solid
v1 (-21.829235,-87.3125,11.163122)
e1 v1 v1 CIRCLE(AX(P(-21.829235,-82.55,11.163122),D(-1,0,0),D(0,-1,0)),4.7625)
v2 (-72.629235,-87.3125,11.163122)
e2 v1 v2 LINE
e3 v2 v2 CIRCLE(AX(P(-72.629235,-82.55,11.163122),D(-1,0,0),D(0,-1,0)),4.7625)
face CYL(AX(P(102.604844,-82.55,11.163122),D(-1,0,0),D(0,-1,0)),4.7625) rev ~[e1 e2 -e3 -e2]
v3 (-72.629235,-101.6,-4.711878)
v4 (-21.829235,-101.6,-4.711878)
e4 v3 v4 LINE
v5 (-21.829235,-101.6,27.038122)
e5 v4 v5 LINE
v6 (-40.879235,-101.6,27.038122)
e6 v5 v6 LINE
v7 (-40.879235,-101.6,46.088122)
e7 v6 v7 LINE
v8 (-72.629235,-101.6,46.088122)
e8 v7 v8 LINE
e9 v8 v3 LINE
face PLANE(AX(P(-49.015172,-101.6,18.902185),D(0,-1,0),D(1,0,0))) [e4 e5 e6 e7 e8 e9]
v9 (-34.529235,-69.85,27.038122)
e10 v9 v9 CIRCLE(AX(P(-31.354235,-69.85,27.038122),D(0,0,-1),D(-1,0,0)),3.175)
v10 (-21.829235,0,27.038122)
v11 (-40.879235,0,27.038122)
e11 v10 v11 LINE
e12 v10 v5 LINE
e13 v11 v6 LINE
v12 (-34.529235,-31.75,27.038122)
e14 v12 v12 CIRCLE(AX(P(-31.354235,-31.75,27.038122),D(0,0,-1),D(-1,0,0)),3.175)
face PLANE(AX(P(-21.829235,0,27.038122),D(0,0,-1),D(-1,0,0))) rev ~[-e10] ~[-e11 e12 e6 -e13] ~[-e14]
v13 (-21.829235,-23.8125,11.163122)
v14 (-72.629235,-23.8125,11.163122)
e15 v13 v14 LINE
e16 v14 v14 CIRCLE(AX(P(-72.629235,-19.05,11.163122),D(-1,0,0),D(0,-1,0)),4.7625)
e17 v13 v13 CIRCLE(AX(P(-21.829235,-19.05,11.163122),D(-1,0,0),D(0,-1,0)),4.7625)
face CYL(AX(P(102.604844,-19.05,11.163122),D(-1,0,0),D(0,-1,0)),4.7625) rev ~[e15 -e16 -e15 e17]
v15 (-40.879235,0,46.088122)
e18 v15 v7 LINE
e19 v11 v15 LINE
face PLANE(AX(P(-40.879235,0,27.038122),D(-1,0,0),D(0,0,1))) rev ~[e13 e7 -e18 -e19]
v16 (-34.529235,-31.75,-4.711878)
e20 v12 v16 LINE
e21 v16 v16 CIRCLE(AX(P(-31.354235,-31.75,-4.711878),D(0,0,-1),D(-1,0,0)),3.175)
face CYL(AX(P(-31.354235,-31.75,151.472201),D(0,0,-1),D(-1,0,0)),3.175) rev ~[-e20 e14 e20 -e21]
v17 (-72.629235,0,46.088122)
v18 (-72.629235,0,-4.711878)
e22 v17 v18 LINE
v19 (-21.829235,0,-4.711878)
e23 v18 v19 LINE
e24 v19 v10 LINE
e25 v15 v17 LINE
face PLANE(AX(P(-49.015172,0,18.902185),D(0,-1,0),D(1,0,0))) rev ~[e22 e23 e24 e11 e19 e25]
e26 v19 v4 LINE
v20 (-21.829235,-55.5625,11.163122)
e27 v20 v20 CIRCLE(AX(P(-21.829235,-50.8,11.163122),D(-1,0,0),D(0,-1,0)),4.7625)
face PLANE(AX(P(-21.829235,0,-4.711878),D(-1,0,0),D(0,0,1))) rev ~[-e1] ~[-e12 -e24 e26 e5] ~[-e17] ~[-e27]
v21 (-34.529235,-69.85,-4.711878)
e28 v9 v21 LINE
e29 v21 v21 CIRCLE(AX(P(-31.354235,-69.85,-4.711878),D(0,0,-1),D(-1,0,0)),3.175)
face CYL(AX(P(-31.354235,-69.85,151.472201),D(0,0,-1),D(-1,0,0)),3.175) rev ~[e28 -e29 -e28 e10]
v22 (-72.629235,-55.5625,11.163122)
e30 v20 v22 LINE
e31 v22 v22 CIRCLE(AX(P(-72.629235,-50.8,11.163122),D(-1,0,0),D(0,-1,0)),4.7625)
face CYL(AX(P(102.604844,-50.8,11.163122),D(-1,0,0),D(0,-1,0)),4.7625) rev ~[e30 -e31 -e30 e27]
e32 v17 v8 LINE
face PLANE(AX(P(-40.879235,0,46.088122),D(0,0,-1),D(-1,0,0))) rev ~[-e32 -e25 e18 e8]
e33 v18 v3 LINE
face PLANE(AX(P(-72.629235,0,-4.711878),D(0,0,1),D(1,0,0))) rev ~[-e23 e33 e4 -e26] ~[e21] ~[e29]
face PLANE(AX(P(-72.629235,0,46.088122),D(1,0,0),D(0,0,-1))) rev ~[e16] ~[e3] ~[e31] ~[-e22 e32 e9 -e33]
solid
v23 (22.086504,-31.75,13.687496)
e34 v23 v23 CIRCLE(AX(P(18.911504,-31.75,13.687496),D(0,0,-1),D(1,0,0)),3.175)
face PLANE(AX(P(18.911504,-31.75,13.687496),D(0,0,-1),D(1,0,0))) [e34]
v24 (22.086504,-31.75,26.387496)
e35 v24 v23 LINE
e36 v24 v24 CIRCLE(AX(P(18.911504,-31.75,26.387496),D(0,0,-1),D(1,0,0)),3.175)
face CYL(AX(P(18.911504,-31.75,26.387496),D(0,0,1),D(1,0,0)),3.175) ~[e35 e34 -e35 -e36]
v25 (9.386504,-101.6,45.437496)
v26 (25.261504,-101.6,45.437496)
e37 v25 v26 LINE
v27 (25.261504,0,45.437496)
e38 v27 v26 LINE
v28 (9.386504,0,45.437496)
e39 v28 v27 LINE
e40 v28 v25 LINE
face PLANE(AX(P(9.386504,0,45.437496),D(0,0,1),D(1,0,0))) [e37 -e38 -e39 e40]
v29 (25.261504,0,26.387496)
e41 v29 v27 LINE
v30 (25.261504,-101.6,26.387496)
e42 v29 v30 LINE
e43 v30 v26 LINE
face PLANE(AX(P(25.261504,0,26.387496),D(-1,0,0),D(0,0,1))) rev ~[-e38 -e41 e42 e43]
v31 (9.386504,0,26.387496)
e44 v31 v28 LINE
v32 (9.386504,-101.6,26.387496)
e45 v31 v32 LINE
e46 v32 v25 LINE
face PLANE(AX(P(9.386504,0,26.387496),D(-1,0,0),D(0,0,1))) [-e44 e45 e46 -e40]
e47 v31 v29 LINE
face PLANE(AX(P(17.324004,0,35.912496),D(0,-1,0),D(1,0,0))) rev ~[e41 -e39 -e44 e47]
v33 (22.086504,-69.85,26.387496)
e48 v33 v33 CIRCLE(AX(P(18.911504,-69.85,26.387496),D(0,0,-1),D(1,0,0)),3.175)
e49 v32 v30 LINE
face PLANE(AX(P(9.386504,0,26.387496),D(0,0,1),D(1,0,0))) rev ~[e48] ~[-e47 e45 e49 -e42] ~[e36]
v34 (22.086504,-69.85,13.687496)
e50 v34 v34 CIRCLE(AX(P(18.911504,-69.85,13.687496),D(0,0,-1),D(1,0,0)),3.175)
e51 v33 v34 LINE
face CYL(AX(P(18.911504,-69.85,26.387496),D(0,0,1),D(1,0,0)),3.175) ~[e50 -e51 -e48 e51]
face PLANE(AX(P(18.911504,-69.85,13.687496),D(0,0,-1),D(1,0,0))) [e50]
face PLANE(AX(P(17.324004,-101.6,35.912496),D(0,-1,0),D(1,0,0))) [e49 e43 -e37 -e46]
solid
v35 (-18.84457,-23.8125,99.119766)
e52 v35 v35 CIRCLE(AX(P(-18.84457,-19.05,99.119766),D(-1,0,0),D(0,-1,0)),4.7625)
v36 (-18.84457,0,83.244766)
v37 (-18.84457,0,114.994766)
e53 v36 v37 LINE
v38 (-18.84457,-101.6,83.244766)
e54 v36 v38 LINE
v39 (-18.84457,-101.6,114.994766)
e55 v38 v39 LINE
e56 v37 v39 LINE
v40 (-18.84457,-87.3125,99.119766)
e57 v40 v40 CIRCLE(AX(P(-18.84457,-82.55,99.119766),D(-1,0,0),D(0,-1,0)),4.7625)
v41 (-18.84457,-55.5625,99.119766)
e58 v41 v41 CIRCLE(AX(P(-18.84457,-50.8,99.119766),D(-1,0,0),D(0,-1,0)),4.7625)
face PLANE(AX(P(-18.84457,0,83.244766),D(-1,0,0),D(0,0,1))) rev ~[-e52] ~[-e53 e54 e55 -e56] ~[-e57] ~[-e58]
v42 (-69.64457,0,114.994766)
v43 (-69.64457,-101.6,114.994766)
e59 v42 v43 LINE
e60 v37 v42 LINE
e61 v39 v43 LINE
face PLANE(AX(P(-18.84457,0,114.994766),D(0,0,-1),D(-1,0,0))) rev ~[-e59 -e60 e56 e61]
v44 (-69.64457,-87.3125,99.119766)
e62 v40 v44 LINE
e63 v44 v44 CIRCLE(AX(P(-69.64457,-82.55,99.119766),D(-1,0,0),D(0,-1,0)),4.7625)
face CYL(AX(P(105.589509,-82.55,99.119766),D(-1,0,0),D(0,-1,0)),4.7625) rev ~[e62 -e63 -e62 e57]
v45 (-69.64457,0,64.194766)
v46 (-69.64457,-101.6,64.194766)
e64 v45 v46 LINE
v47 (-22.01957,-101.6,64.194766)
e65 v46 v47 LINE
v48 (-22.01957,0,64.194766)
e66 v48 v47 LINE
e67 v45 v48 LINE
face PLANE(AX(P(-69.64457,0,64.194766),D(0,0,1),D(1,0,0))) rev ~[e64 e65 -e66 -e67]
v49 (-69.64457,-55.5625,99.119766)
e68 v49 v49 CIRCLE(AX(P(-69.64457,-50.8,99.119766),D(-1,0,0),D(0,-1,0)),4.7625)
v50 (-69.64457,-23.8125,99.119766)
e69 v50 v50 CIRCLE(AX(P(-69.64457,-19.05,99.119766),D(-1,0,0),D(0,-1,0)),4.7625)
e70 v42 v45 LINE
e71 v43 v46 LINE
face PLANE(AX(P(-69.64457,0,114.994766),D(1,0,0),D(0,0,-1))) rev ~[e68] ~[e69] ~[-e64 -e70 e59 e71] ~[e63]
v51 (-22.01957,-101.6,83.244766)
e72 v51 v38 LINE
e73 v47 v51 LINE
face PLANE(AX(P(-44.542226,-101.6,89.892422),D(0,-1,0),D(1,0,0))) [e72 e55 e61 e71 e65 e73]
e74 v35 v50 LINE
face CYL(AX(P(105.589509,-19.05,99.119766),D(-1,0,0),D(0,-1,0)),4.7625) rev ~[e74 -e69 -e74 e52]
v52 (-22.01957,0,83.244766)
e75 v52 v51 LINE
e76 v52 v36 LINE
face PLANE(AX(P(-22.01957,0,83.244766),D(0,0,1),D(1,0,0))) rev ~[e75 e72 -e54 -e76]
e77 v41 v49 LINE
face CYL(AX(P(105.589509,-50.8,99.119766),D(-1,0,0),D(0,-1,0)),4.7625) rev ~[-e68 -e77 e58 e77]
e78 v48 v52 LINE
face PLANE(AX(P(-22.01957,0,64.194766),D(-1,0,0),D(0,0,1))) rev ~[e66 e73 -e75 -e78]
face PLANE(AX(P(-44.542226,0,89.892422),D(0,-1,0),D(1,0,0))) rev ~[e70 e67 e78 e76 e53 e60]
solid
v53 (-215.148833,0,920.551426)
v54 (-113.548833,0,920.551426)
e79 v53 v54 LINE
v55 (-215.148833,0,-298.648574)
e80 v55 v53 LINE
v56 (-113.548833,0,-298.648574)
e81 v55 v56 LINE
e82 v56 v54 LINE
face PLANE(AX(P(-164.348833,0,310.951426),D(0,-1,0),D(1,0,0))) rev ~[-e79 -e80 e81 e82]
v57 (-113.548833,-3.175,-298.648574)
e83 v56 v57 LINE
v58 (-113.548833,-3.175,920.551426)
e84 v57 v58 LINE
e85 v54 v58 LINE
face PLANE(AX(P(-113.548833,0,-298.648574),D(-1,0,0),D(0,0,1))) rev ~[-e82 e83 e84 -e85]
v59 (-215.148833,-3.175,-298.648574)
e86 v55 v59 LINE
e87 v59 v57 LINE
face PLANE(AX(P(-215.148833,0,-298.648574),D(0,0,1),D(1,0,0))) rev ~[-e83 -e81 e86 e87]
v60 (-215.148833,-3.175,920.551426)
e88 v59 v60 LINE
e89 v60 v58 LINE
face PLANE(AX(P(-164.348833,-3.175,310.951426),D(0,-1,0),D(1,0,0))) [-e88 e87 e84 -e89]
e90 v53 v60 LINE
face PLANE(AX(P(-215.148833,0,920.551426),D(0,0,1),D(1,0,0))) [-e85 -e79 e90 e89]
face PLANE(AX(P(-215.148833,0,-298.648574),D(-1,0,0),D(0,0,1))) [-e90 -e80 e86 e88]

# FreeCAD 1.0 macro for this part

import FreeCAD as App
import Part
import Sketcher

V = App.Vector
Q = App.Units.Quantity


def add_polygon(sketch, points):
    """Adds a closed chain of lines whose ends are joined by coincident constraints."""
    first, n = sketch.GeometryCount, len(points)
    for a, b in zip(points, points[1:] + points[:1]):
        sketch.addGeometry(Part.LineSegment(App.Vector(*a, 0), App.Vector(*b, 0)), False)
    for i in range(n):
        sketch.addConstraint(Sketcher.Constraint("Coincident", first + i, 2, first + (i + 1) % n, 1))

doc = App.newDocument("Part")
body = doc.addObject("PartDesign::Body", "Body")

# Sketch on XZ plane
sketch1 = body.newObject("Sketcher::SketchObject", "Sketch")
sketch1.AttachmentSupport = (doc.getObject("XZ_Plane"), [""])
sketch1.MapMode = "FlatFace"
add_polygon(sketch1, [(-41, 46), (-73, 46), (-73, -5), (-22, -5), (-22, 27), (-41, 27)])  # lines 0-5
sketch1.addConstraint(Sketcher.Constraint("Horizontal", 0))
sketch1.addConstraint(Sketcher.Constraint("Vertical", 1))
sketch1.addConstraint(Sketcher.Constraint("Horizontal", 2))
sketch1.addConstraint(Sketcher.Constraint("Vertical", 3))
sketch1.addConstraint(Sketcher.Constraint("Horizontal", 4))
sketch1.addConstraint(Sketcher.Constraint("Vertical", 5))
sketch1.addConstraint(Sketcher.Constraint("Equal", 2, 1))
sketch1.addConstraint(Sketcher.Constraint("Equal", 0, 3))
sketch1.addConstraint(Sketcher.Constraint("DistanceX", 2, 1, 2, 2, Q("2 in")))
sketch1.addConstraint(Sketcher.Constraint("DistanceX", 0, 2, 0, 1, Q("1.25 in")))
sketch1.addConstraint(Sketcher.Constraint("DistanceY", -1, 1, 0, 2, 46.088122))
sketch1.addConstraint(Sketcher.Constraint("DistanceX", 0, 2, -1, 1, 72.629235))
pad1 = body.newObject("PartDesign::Pad", "Pad")
pad1.Profile = sketch1
pad1.Length = Q("4 in")

# Sketch on XY plane
sketch2 = body.newObject("Sketcher::SketchObject", "Sketch001")
sketch2.AttachmentSupport = (doc.getObject("XY_Plane"), [""])
sketch2.MapMode = "FlatFace"
sketch2.AttachmentOffset = App.Placement(V(0, 0, 27.038122), App.Rotation())
sketch2.addGeometry(Part.Circle(V(-31.4, -69.8, 0), V(0, 0, 1), 3.2), False)
sketch2.addGeometry(Part.Circle(V(-31.4, -31.8, 0), V(0, 0, 1), 3.2), False)
sketch2.addConstraint(Sketcher.Constraint("Equal", 0, 1))
sketch2.addConstraint(Sketcher.Constraint("Vertical", 0, 3, 1, 3))
sketch2.addConstraint(Sketcher.Constraint("Diameter", 0, Q("0.25 in")))
sketch2.addConstraint(Sketcher.Constraint("DistanceY", 0, 3, 1, 3, Q("1.5 in")))
sketch2.addConstraint(Sketcher.Constraint("DistanceY", 0, 3, -1, 1, Q("2.75 in")))
sketch2.addConstraint(Sketcher.Constraint("DistanceX", 0, 3, -1, 1, 31.354235))
doc.recompute()
hole = body.newObject("PartDesign::Hole", "Hole")
hole.Profile = sketch2
hole.ThreadType = "None"
hole.Diameter = Q("0.25 in")
hole.DepthType = "ThroughAll"

# Sketch on YZ plane
sketch3 = body.newObject("Sketcher::SketchObject", "Sketch002")
sketch3.AttachmentSupport = (doc.getObject("YZ_Plane"), [""])
sketch3.MapMode = "FlatFace"
sketch3.AttachmentOffset = App.Placement(V(0, 0, -21.829235), App.Rotation())
sketch3.addGeometry(Part.Circle(V(-82.5, 11.2, 0), V(0, 0, 1), 4.8), False)
sketch3.addGeometry(Part.Circle(V(-50.8, 11.2, 0), V(0, 0, 1), 4.8), False)
sketch3.addGeometry(Part.Circle(V(-19.1, 11.2, 0), V(0, 0, 1), 4.8), False)
sketch3.addConstraint(Sketcher.Constraint("Equal", 0, 1))
sketch3.addConstraint(Sketcher.Constraint("Equal", 1, 2))
sketch3.addConstraint(Sketcher.Constraint("Horizontal", 0, 3, 1, 3))
sketch3.addConstraint(Sketcher.Constraint("Horizontal", 1, 3, 2, 3))
sketch3.addConstraint(Sketcher.Constraint("Diameter", 0, Q("0.375 in")))
sketch3.addConstraint(Sketcher.Constraint("DistanceX", 1, 3, -1, 1, Q("2 in")))
sketch3.addConstraint(Sketcher.Constraint("DistanceX", 0, 3, 2, 3, Q("2.5 in")))
sketch3.addConstraint(Sketcher.Constraint("DistanceX", 0, 3, -1, 1, Q("3.25 in")))
sketch3.addConstraint(Sketcher.Constraint("DistanceY", -1, 1, 0, 3, 11.163122))
doc.recompute()
hole2 = body.newObject("PartDesign::Hole", "Hole001")
hole2.Profile = sketch3
hole2.ThreadType = "None"
hole2.Diameter = Q("0.375 in")
hole2.DepthType = "ThroughAll"
body2 = doc.addObject("PartDesign::Body", "Body001")

# Sketch on XZ plane
sketch4 = body2.newObject("Sketcher::SketchObject", "Sketch003")
sketch4.AttachmentSupport = (doc.getObject("XZ_Plane001"), [""])
sketch4.MapMode = "FlatFace"
add_polygon(sketch4, [(9, 45), (9, 26), (25, 26), (25, 45)])  # lines 0-3
sketch4.addConstraint(Sketcher.Constraint("Vertical", 0))
sketch4.addConstraint(Sketcher.Constraint("Horizontal", 1))
sketch4.addConstraint(Sketcher.Constraint("Vertical", 2))
sketch4.addConstraint(Sketcher.Constraint("Horizontal", 3))
sketch4.addConstraint(Sketcher.Constraint("DistanceY", 0, 2, 0, 1, Q("0.75 in")))
sketch4.addConstraint(Sketcher.Constraint("DistanceX", 1, 1, 1, 2, Q("0.625 in")))
sketch4.addConstraint(Sketcher.Constraint("DistanceX", -1, 1, 0, 2, 9.386504))
sketch4.addConstraint(Sketcher.Constraint("DistanceY", -1, 1, 0, 2, 26.387496))
pad2 = body2.newObject("PartDesign::Pad", "Pad001")
pad2.Profile = sketch4
pad2.Length = Q("4 in")

# Sketch on XY plane
sketch5 = body2.newObject("Sketcher::SketchObject", "Sketch004")
sketch5.AttachmentSupport = (doc.getObject("XY_Plane001"), [""])
sketch5.MapMode = "FlatFace"
sketch5.AttachmentOffset = App.Placement(V(0, 0, 26.387496), App.Rotation())
sketch5.addGeometry(Part.Circle(V(18.9, -69.8, 0), V(0, 0, 1), 3.2), False)
sketch5.addGeometry(Part.Circle(V(18.9, -31.8, 0), V(0, 0, 1), 3.2), False)
sketch5.addConstraint(Sketcher.Constraint("Equal", 0, 1))
sketch5.addConstraint(Sketcher.Constraint("Vertical", 0, 3, 1, 3))
sketch5.addConstraint(Sketcher.Constraint("Diameter", 0, Q("0.25 in")))
sketch5.addConstraint(Sketcher.Constraint("DistanceY", 0, 3, 1, 3, Q("1.5 in")))
sketch5.addConstraint(Sketcher.Constraint("DistanceY", 0, 3, -1, 1, Q("2.75 in")))
sketch5.addConstraint(Sketcher.Constraint("DistanceX", -1, 1, 0, 3, 18.911504))
pad3 = body2.newObject("PartDesign::Pad", "Pad002")
pad3.Profile = sketch5
pad3.Length = Q("0.5 in")
pad3.Reversed = True
body3 = doc.addObject("PartDesign::Body", "Body002")

# Sketch on XZ plane
sketch6 = body3.newObject("Sketcher::SketchObject", "Sketch005")
sketch6.AttachmentSupport = (doc.getObject("XZ_Plane002"), [""])
sketch6.MapMode = "FlatFace"
add_polygon(sketch6, [(-18.8, 115), (-69.6, 115), (-69.6, 64.2), (-22, 64.2), (-22, 83.2), (-18.8, 83.2)])  # lines 0-5
sketch6.addConstraint(Sketcher.Constraint("Horizontal", 0))
sketch6.addConstraint(Sketcher.Constraint("Vertical", 1))
sketch6.addConstraint(Sketcher.Constraint("Horizontal", 2))
sketch6.addConstraint(Sketcher.Constraint("Vertical", 3))
sketch6.addConstraint(Sketcher.Constraint("Horizontal", 4))
sketch6.addConstraint(Sketcher.Constraint("Vertical", 5))
sketch6.addConstraint(Sketcher.Constraint("Equal", 0, 1))
sketch6.addConstraint(Sketcher.Constraint("DistanceX", 0, 2, 0, 1, Q("2 in")))
sketch6.addConstraint(Sketcher.Constraint("DistanceY", 3, 1, 3, 2, Q("0.75 in")))
sketch6.addConstraint(Sketcher.Constraint("DistanceX", 2, 1, 2, 2, Q("1.875 in")))
sketch6.addConstraint(Sketcher.Constraint("DistanceX", 0, 2, -1, 1, 69.64457))
sketch6.addConstraint(Sketcher.Constraint("DistanceY", -1, 1, 0, 2, 114.994766))
pad4 = body3.newObject("PartDesign::Pad", "Pad003")
pad4.Profile = sketch6
pad4.Length = Q("4 in")

# Sketch on YZ plane
sketch7 = body3.newObject("Sketcher::SketchObject", "Sketch006")
sketch7.AttachmentSupport = (doc.getObject("YZ_Plane002"), [""])
sketch7.MapMode = "FlatFace"
sketch7.AttachmentOffset = App.Placement(V(0, 0, -18.84457), App.Rotation())
sketch7.addGeometry(Part.Circle(V(-82.5, 99.1, 0), V(0, 0, 1), 4.8), False)
sketch7.addGeometry(Part.Circle(V(-50.8, 99.1, 0), V(0, 0, 1), 4.8), False)
sketch7.addGeometry(Part.Circle(V(-19.1, 99.1, 0), V(0, 0, 1), 4.8), False)
sketch7.addConstraint(Sketcher.Constraint("Equal", 0, 1))
sketch7.addConstraint(Sketcher.Constraint("Equal", 1, 2))
sketch7.addConstraint(Sketcher.Constraint("Horizontal", 0, 3, 1, 3))
sketch7.addConstraint(Sketcher.Constraint("Horizontal", 1, 3, 2, 3))
sketch7.addConstraint(Sketcher.Constraint("Diameter", 0, Q("0.375 in")))
sketch7.addConstraint(Sketcher.Constraint("DistanceX", 1, 3, -1, 1, Q("2 in")))
sketch7.addConstraint(Sketcher.Constraint("DistanceX", 0, 3, 2, 3, Q("2.5 in")))
sketch7.addConstraint(Sketcher.Constraint("DistanceX", 0, 3, -1, 1, Q("3.25 in")))
sketch7.addConstraint(Sketcher.Constraint("DistanceY", -1, 1, 0, 3, 99.119766))
doc.recompute()
hole3 = body3.newObject("PartDesign::Hole", "Hole002")
hole3.Profile = sketch7
hole3.ThreadType = "None"
hole3.Diameter = Q("0.375 in")
hole3.DepthType = "ThroughAll"
body4 = doc.addObject("PartDesign::Body", "Body003")

# Sketch on XZ plane
sketch8 = body4.newObject("Sketcher::SketchObject", "Sketch007")
sketch8.AttachmentSupport = (doc.getObject("XZ_Plane003"), [""])
sketch8.MapMode = "FlatFace"
add_polygon(sketch8, [(-215, 921), (-215, -299), (-114, -299), (-114, 921)])  # lines 0-3
sketch8.addConstraint(Sketcher.Constraint("Vertical", 0))
sketch8.addConstraint(Sketcher.Constraint("Horizontal", 1))
sketch8.addConstraint(Sketcher.Constraint("Vertical", 2))
sketch8.addConstraint(Sketcher.Constraint("Horizontal", 3))
sketch8.addConstraint(Sketcher.Constraint("DistanceX", 1, 1, 1, 2, Q("4 in")))
sketch8.addConstraint(Sketcher.Constraint("DistanceY", 0, 2, 0, 1, Q("48 in")))
sketch8.addConstraint(Sketcher.Constraint("DistanceX", 0, 2, -1, 1, 215.148833))
sketch8.addConstraint(Sketcher.Constraint("DistanceY", 0, 2, -1, 1, 298.648574))
pad5 = body4.newObject("PartDesign::Pad", "Pad004")
pad5.Profile = sketch8
pad5.Length = Q("0.125 in")

doc.recompute()
